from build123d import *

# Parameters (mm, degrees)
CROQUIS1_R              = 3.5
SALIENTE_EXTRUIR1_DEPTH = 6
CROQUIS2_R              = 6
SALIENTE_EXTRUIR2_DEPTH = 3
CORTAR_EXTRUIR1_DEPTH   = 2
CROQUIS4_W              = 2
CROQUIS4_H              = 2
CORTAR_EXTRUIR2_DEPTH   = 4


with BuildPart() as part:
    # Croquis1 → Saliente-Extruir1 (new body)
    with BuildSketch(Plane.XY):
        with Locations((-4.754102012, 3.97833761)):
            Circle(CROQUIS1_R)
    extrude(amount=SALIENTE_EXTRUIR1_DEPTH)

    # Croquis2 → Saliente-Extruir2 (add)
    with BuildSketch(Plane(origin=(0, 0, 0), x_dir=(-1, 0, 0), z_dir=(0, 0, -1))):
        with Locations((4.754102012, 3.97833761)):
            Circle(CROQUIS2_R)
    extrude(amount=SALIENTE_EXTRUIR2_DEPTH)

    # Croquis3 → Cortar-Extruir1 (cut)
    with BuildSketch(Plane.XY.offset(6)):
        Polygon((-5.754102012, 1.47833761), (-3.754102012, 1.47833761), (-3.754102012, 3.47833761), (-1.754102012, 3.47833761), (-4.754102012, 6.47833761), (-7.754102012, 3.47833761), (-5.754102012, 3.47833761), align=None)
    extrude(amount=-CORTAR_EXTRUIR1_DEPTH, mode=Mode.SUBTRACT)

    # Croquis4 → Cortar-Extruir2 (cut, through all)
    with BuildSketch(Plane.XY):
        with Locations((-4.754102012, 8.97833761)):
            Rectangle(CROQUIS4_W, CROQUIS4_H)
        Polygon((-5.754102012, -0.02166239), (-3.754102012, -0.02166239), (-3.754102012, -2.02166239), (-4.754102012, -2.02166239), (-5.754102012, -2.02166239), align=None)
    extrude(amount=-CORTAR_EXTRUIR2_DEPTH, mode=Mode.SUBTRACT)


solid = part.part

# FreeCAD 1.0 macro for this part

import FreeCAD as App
import Part
import Sketcher

V = App.Vector


def add_polygon(sketch, points):
    """Adds a closed chain of lines whose ends are joined by coincident constraints."""
    first, n = sketch.GeometryCount, len(points)
    for a, b in zip(points, points[1:] + points[:1]):
        sketch.addGeometry(Part.LineSegment(App.Vector(*a, 0), App.Vector(*b, 0)), False)
    for i in range(n):
        sketch.addConstraint(Sketcher.Constraint("Coincident", first + i, 2, first + (i + 1) % n, 1))

doc = App.newDocument("Part")
body = doc.addObject("PartDesign::Body", "Body")

# Sketch on XY plane
sketch1 = body.newObject("Sketcher::SketchObject", "Sketch")
sketch1.AttachmentSupport = (doc.getObject("XY_Plane"), [""])
sketch1.MapMode = "FlatFace"
sketch1.addGeometry(Part.Circle(V(-4.8, 4, 0), V(0, 0, 1), 3.5), False)
sketch1.addConstraint([
    Sketcher.Constraint("Diameter", 0, 7.0),
    Sketcher.Constraint("DistanceX", 0, 3, -1, 1, 4.754102),
    Sketcher.Constraint("DistanceY", -1, 1, 0, 3, 3.978338),
])
pad1 = body.newObject("PartDesign::Pad", "Pad")
pad1.Profile = sketch1
pad1.Length = 6

# Sketch on XY plane
sketch2 = body.newObject("Sketcher::SketchObject", "Sketch001")
sketch2.AttachmentSupport = (doc.getObject("XY_Plane"), [""])
sketch2.MapMode = "FlatFace"
sketch2.addGeometry(Part.Circle(V(-5, 4, 0), V(0, 0, 1), 6), False)
sketch2.addConstraint([
    Sketcher.Constraint("Diameter", 0, 12.0),
    Sketcher.Constraint("DistanceX", 0, 3, -1, 1, 4.754102),
    Sketcher.Constraint("DistanceY", -1, 1, 0, 3, 3.978338),
])
pad2 = body.newObject("PartDesign::Pad", "Pad001")
pad2.Profile = sketch2
pad2.Length = 3
pad2.Reversed = True

# Sketch on XY plane
sketch3 = body.newObject("Sketcher::SketchObject", "Sketch002")
sketch3.AttachmentSupport = (doc.getObject("XY_Plane"), [""])
sketch3.MapMode = "FlatFace"
sketch3.AttachmentOffset = App.Placement(V(0, 0, 6), App.Rotation())
add_polygon(sketch3, [(-5.8, 1.5), (-3.8, 1.5), (-3.8, 3.5), (-1.8, 3.5), (-4.8, 6.5), (-7.8, 3.5), (-5.8, 3.5)])  # lines 0-6
sketch3.addConstraint([
    Sketcher.Constraint("Horizontal", 0),
    Sketcher.Constraint("Vertical", 1),
    Sketcher.Constraint("Horizontal", 2),
    Sketcher.Constraint("Horizontal", 5),
    Sketcher.Constraint("Vertical", 6),
    Sketcher.Constraint("Perpendicular", 3, 4),
    Sketcher.Constraint("Horizontal", 2, 2, 4, 2),
    Sketcher.Constraint("Equal", 0, 2),
    Sketcher.Constraint("Equal", 2, 5),
    Sketcher.Constraint("Equal", 5, 1),
    Sketcher.Constraint("Equal", 3, 4),
    Sketcher.Constraint("DistanceX", 0, 1, 0, 2, 2.0),
    Sketcher.Constraint("DistanceX", 0, 2, -1, 1, 3.754102),
    Sketcher.Constraint("DistanceY", -1, 1, 0, 2, 1.478338),
])
pocket1 = body.newObject("PartDesign::Pocket", "Pocket")
pocket1.Profile = sketch3
pocket1.Length = 2

# Sketch on XY plane
sketch4 = body.newObject("Sketcher::SketchObject", "Sketch003")
sketch4.AttachmentSupport = (doc.getObject("XY_Plane"), [""])
sketch4.MapMode = "FlatFace"
add_polygon(sketch4, [(-5.8, 10), (-5.8, 8), (-3.8, 8), (-3.8, 10)])  # lines 0-3
add_polygon(sketch4, [(-3.8, 0), (-5.8, 0), (-5.8, -2), (-3.8, -2)])  # lines 4-7
sketch4.addConstraint([
    Sketcher.Constraint("Vertical", 0),
    Sketcher.Constraint("Horizontal", 1),
    Sketcher.Constraint("Vertical", 2),
    Sketcher.Constraint("Horizontal", 3),
    Sketcher.Constraint("Horizontal", 4),
    Sketcher.Constraint("Vertical", 5),
    Sketcher.Constraint("Horizontal", 6),
    Sketcher.Constraint("Vertical", 7),
    Sketcher.Constraint("Vertical", 3, 2, 4, 2),
    Sketcher.Constraint("Vertical", 2, 2, 6, 2),
    Sketcher.Constraint("Equal", 6, 0),
    Sketcher.Constraint("Equal", 2, 5),
    Sketcher.Constraint("DistanceX", 1, 1, 1, 2, 2.0),
    Sketcher.Constraint("DistanceY", 4, 2, 0, 2, 8.0),
    Sketcher.Constraint("DistanceX", 0, 2, -1, 1, 5.754102),
    Sketcher.Constraint("DistanceY", -1, 1, 0, 2, 7.978338),
])
pocket2 = body.newObject("PartDesign::Pocket", "Pocket001")
pocket2.Profile = sketch4
pocket2.Type = "ThroughAll"

doc.recompute()
